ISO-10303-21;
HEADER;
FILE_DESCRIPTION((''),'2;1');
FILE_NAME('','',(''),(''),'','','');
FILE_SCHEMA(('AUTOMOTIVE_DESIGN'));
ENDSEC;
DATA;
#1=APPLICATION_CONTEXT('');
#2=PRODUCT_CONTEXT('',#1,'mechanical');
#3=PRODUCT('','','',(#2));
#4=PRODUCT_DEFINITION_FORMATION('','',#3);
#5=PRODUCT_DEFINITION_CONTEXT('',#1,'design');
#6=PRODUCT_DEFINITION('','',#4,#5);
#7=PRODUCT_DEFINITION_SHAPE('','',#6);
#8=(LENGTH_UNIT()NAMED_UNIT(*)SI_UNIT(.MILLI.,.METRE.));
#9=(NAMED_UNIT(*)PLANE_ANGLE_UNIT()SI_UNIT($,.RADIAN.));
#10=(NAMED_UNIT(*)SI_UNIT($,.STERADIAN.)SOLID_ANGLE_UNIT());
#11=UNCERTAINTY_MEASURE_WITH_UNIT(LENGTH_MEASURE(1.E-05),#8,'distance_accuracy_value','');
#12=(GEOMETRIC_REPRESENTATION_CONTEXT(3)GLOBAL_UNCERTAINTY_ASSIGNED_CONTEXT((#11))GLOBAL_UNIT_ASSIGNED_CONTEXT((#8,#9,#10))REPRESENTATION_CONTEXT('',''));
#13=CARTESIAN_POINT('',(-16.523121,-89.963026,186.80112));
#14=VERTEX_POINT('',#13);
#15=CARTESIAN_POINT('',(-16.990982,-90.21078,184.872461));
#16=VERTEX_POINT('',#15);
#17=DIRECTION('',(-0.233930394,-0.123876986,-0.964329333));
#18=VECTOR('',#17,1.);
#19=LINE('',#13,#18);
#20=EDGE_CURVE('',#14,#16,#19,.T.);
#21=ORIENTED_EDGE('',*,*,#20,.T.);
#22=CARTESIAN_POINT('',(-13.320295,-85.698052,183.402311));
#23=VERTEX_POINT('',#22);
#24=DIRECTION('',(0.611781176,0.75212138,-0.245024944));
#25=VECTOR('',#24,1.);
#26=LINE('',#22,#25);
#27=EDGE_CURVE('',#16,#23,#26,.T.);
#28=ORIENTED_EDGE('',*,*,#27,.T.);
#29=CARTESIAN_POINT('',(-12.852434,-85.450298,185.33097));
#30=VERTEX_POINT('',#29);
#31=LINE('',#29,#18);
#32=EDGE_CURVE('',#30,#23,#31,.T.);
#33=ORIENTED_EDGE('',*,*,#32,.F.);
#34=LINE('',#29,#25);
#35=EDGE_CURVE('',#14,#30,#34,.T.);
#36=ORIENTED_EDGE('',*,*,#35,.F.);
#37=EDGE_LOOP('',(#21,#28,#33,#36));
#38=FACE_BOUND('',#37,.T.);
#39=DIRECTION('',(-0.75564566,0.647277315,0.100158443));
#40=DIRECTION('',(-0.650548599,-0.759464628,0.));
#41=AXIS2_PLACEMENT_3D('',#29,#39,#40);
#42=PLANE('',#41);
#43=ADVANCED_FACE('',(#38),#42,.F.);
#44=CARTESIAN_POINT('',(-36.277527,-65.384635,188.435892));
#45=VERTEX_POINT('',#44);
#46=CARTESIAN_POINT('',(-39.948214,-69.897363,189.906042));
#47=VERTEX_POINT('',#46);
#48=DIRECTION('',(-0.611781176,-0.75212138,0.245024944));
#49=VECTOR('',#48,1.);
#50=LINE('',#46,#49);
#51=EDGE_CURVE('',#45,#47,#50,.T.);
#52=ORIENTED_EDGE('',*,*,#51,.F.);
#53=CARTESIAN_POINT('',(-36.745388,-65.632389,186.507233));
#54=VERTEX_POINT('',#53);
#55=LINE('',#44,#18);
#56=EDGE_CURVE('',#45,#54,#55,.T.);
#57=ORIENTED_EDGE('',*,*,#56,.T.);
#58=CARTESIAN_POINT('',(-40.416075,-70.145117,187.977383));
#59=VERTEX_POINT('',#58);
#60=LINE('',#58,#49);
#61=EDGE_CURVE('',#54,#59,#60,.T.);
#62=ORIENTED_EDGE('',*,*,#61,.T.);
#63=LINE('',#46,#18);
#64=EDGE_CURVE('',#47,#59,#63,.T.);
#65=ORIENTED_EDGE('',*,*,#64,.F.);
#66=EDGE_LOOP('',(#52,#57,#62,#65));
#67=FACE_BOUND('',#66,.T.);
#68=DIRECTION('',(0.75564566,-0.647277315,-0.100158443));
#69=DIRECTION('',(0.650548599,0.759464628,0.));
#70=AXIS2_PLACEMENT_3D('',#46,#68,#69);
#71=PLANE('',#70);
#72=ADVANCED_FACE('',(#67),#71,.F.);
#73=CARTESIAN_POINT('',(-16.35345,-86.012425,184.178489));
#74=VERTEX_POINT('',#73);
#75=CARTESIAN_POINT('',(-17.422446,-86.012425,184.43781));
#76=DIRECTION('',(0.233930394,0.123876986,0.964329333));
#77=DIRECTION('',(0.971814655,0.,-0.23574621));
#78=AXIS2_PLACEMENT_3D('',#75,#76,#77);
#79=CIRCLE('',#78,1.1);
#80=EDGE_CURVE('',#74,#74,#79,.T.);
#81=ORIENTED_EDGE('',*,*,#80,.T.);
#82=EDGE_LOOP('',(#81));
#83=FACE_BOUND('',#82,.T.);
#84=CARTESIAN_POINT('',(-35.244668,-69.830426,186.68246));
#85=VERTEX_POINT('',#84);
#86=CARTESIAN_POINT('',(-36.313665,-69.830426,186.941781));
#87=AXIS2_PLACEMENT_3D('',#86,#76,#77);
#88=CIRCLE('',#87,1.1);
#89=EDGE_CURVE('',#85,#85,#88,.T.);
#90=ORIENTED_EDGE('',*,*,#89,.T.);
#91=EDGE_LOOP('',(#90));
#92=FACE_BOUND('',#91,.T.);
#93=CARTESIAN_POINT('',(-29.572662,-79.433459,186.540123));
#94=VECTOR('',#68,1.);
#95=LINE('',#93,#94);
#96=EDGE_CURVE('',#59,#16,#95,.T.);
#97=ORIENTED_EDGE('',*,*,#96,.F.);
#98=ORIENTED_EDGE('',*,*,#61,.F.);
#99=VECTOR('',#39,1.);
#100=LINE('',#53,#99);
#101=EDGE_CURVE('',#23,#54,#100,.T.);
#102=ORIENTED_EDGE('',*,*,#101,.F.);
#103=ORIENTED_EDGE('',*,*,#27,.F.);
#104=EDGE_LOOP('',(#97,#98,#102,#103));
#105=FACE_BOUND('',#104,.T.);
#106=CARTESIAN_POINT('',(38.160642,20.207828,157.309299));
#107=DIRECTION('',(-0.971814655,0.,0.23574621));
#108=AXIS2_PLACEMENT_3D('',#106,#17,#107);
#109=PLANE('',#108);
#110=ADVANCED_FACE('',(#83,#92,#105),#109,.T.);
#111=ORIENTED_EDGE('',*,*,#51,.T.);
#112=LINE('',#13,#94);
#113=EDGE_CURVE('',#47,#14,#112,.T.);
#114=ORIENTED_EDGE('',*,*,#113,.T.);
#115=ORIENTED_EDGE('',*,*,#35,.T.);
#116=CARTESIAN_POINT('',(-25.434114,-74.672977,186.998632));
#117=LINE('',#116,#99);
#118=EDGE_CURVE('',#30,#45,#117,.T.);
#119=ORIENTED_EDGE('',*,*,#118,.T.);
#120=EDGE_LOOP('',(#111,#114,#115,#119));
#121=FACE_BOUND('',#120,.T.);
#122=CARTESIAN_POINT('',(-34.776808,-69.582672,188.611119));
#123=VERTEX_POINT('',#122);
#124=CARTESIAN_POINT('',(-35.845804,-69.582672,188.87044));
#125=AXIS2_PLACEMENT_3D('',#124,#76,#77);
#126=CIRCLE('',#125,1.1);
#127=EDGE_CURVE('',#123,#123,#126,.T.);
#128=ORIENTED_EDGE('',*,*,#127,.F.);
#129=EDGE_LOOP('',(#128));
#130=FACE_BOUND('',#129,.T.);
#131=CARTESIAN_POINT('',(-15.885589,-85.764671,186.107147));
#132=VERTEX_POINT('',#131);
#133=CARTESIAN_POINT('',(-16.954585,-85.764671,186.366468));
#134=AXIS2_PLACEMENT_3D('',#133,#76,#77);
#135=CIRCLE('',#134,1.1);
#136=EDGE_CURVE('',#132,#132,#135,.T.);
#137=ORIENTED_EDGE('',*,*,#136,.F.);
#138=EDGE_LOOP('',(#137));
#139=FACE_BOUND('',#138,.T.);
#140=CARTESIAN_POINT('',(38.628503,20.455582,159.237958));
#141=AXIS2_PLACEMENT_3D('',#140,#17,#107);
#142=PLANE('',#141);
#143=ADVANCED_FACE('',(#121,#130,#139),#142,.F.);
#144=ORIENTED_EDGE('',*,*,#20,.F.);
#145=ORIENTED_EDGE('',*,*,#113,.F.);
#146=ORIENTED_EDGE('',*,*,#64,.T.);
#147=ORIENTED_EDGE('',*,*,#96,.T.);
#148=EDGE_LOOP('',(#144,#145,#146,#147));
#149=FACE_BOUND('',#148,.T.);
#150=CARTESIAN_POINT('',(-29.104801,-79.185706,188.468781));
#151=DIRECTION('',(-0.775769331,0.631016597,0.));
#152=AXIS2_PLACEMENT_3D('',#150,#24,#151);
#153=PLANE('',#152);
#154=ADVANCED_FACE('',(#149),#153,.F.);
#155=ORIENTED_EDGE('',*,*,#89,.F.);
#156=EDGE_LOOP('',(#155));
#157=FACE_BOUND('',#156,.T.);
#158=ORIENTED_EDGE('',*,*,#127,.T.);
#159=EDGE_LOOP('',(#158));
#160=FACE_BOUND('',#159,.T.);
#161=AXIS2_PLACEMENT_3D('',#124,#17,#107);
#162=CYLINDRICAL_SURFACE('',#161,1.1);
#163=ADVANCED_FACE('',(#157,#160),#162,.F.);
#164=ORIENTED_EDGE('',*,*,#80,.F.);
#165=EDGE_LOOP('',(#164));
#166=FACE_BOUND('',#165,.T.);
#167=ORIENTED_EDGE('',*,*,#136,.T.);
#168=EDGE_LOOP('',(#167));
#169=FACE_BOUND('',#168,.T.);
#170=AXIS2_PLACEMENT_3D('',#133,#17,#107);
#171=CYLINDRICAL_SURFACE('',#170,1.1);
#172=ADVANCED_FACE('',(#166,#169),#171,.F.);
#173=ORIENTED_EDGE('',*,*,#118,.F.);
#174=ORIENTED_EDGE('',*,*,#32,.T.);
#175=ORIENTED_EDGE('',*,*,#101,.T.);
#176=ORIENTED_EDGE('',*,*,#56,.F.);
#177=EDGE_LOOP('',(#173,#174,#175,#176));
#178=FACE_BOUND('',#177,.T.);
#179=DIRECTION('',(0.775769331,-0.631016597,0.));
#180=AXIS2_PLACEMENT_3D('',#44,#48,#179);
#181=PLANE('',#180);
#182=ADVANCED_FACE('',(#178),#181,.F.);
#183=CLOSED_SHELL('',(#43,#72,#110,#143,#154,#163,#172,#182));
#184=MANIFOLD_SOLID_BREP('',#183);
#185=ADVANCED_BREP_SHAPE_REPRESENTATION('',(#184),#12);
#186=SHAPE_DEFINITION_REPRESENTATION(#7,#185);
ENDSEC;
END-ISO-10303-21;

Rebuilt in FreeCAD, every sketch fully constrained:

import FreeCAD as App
import Part
import Sketcher

V = App.Vector
Q = App.Units.Quantity


def add_polygon(sketch, points):
    """Adds a closed chain of lines whose ends are joined by coincident constraints."""
    first, n = sketch.GeometryCount, len(points)
    for a, b in zip(points, points[1:] + points[:1]):
        sketch.addGeometry(Part.LineSegment(App.Vector(*a, 0), App.Vector(*b, 0)), False)
    for i in range(n):
        sketch.addConstraint(Sketcher.Constraint("Coincident", first + i, 2, first + (i + 1) % n, 1))

doc = App.newDocument("Part")
params = doc.addObject("Spreadsheet::Sheet", "Params")
for row, (alias, value) in enumerate([
    ("sketch1_diameter", "2.200001 mm"),
    ("sketch1_length", "6 mm"),
    ("sketch1_length2", "12.349998 mm"),
    ("pad1_length", "2 mm"),
], start=1):
    params.set(f"A{row}", alias)
    params.set(f"B{row}", "=" + value)
    params.setAlias(f"B{row}", alias)

body = doc.addObject("PartDesign::Body", "Body")

sketch1 = body.newObject("Sketcher::SketchObject", "Sketch")
sketch1.Placement = App.Placement(V(38.160642, 20.207828, 157.309299), App.Rotation(V(0.972253347, -0.029805598, -0.232023826), V(0, 0.991849847, -0.12741225), V(0.233930394, 0.123876986, 0.964329333), "ZXY"))
add_polygon(sketch1, [(-79.3, -94.8), (-69.7, -102.6), (-56.7, -113), (-53, -108.4), (-65.9, -97.9), (-75.5, -90.1), (-77, -88.9), (-80.8, -93.5)])
sketch1.addGeometry(Part.Circle(V(-57.2, -108.8, 0), V(0, 0, 1), 1.1), False)
sketch1.addGeometry(Part.Circle(V(-76.6, -93.1, 0), V(0, 0, 1), 1.1), False)
sketch1.addConstraint(Sketcher.Constraint("Equal", 8, 9))
sketch1.addConstraint(Sketcher.Constraint("Parallel", 0, 1))
sketch1.addConstraint(Sketcher.Constraint("Perpendicular", 1, 2))
sketch1.addConstraint(Sketcher.Constraint("Perpendicular", 2, 3))
sketch1.addConstraint(Sketcher.Constraint("Parallel", 3, 4))
sketch1.addConstraint(Sketcher.Constraint("Parallel", 4, 5))
sketch1.addConstraint(Sketcher.Constraint("Perpendicular", 5, 6))
sketch1.addConstraint(Sketcher.Constraint("Perpendicular", 6, 7))
sketch1.addConstraint(Sketcher.Constraint("Equal", 1, 3))
sketch1.addConstraint(Sketcher.Constraint("Equal", 0, 4))
sketch1.addConstraint(Sketcher.Constraint("Diameter", 8, Q("2.200001 mm")))
sketch1.addConstraint(Sketcher.Constraint("Distance", 2, Q("6 mm")))
sketch1.addConstraint(Sketcher.Constraint("Distance", 0, Q("12.349998 mm")))
sketch1.addConstraint(Sketcher.Constraint("DistanceY", 2, 2, -1, 1, Q("108.367301 mm")))
sketch1.addConstraint(Sketcher.Constraint("DistanceX", 3, 2, 1, 2, Q("9.165299 mm")))
sketch1.addConstraint(Sketcher.Constraint("DistanceX", 9, 3, -1, 1, Q("76.599692 mm")))
sketch1.addConstraint(Sketcher.Constraint("DistanceY", 9, 3, -1, 1, Q("93.07997 mm")))
sketch1.addConstraint(Sketcher.Constraint("DistanceX", 0, 2, -1, 1, Q("69.666311 mm")))
sketch1.addConstraint(Sketcher.Constraint("DistanceY", 0, 2, -1, 1, Q("102.553561 mm")))
sketch1.addConstraint(Sketcher.Constraint("DistanceY", 5, 2, -1, 1, Q("88.860781 mm")))
sketch1.addConstraint(Sketcher.Constraint("DistanceX", 8, 3, 2, 2, Q("4.21922 mm")))
sketch1.addConstraint(Sketcher.Constraint("DistanceY", 8, 3, 3, 2, Q("10.92075 mm")))
sketch1.setExpression("Constraints[18]", "Params.sketch1_diameter")
sketch1.setExpression("Constraints[19]", "Params.sketch1_length")
sketch1.setExpression("Constraints[20]", "Params.sketch1_length2")
pad1 = body.newObject("PartDesign::Pad", "Pad")
pad1.Profile = sketch1
pad1.setExpression("Length", "Params.pad1_length")

doc.recompute()
